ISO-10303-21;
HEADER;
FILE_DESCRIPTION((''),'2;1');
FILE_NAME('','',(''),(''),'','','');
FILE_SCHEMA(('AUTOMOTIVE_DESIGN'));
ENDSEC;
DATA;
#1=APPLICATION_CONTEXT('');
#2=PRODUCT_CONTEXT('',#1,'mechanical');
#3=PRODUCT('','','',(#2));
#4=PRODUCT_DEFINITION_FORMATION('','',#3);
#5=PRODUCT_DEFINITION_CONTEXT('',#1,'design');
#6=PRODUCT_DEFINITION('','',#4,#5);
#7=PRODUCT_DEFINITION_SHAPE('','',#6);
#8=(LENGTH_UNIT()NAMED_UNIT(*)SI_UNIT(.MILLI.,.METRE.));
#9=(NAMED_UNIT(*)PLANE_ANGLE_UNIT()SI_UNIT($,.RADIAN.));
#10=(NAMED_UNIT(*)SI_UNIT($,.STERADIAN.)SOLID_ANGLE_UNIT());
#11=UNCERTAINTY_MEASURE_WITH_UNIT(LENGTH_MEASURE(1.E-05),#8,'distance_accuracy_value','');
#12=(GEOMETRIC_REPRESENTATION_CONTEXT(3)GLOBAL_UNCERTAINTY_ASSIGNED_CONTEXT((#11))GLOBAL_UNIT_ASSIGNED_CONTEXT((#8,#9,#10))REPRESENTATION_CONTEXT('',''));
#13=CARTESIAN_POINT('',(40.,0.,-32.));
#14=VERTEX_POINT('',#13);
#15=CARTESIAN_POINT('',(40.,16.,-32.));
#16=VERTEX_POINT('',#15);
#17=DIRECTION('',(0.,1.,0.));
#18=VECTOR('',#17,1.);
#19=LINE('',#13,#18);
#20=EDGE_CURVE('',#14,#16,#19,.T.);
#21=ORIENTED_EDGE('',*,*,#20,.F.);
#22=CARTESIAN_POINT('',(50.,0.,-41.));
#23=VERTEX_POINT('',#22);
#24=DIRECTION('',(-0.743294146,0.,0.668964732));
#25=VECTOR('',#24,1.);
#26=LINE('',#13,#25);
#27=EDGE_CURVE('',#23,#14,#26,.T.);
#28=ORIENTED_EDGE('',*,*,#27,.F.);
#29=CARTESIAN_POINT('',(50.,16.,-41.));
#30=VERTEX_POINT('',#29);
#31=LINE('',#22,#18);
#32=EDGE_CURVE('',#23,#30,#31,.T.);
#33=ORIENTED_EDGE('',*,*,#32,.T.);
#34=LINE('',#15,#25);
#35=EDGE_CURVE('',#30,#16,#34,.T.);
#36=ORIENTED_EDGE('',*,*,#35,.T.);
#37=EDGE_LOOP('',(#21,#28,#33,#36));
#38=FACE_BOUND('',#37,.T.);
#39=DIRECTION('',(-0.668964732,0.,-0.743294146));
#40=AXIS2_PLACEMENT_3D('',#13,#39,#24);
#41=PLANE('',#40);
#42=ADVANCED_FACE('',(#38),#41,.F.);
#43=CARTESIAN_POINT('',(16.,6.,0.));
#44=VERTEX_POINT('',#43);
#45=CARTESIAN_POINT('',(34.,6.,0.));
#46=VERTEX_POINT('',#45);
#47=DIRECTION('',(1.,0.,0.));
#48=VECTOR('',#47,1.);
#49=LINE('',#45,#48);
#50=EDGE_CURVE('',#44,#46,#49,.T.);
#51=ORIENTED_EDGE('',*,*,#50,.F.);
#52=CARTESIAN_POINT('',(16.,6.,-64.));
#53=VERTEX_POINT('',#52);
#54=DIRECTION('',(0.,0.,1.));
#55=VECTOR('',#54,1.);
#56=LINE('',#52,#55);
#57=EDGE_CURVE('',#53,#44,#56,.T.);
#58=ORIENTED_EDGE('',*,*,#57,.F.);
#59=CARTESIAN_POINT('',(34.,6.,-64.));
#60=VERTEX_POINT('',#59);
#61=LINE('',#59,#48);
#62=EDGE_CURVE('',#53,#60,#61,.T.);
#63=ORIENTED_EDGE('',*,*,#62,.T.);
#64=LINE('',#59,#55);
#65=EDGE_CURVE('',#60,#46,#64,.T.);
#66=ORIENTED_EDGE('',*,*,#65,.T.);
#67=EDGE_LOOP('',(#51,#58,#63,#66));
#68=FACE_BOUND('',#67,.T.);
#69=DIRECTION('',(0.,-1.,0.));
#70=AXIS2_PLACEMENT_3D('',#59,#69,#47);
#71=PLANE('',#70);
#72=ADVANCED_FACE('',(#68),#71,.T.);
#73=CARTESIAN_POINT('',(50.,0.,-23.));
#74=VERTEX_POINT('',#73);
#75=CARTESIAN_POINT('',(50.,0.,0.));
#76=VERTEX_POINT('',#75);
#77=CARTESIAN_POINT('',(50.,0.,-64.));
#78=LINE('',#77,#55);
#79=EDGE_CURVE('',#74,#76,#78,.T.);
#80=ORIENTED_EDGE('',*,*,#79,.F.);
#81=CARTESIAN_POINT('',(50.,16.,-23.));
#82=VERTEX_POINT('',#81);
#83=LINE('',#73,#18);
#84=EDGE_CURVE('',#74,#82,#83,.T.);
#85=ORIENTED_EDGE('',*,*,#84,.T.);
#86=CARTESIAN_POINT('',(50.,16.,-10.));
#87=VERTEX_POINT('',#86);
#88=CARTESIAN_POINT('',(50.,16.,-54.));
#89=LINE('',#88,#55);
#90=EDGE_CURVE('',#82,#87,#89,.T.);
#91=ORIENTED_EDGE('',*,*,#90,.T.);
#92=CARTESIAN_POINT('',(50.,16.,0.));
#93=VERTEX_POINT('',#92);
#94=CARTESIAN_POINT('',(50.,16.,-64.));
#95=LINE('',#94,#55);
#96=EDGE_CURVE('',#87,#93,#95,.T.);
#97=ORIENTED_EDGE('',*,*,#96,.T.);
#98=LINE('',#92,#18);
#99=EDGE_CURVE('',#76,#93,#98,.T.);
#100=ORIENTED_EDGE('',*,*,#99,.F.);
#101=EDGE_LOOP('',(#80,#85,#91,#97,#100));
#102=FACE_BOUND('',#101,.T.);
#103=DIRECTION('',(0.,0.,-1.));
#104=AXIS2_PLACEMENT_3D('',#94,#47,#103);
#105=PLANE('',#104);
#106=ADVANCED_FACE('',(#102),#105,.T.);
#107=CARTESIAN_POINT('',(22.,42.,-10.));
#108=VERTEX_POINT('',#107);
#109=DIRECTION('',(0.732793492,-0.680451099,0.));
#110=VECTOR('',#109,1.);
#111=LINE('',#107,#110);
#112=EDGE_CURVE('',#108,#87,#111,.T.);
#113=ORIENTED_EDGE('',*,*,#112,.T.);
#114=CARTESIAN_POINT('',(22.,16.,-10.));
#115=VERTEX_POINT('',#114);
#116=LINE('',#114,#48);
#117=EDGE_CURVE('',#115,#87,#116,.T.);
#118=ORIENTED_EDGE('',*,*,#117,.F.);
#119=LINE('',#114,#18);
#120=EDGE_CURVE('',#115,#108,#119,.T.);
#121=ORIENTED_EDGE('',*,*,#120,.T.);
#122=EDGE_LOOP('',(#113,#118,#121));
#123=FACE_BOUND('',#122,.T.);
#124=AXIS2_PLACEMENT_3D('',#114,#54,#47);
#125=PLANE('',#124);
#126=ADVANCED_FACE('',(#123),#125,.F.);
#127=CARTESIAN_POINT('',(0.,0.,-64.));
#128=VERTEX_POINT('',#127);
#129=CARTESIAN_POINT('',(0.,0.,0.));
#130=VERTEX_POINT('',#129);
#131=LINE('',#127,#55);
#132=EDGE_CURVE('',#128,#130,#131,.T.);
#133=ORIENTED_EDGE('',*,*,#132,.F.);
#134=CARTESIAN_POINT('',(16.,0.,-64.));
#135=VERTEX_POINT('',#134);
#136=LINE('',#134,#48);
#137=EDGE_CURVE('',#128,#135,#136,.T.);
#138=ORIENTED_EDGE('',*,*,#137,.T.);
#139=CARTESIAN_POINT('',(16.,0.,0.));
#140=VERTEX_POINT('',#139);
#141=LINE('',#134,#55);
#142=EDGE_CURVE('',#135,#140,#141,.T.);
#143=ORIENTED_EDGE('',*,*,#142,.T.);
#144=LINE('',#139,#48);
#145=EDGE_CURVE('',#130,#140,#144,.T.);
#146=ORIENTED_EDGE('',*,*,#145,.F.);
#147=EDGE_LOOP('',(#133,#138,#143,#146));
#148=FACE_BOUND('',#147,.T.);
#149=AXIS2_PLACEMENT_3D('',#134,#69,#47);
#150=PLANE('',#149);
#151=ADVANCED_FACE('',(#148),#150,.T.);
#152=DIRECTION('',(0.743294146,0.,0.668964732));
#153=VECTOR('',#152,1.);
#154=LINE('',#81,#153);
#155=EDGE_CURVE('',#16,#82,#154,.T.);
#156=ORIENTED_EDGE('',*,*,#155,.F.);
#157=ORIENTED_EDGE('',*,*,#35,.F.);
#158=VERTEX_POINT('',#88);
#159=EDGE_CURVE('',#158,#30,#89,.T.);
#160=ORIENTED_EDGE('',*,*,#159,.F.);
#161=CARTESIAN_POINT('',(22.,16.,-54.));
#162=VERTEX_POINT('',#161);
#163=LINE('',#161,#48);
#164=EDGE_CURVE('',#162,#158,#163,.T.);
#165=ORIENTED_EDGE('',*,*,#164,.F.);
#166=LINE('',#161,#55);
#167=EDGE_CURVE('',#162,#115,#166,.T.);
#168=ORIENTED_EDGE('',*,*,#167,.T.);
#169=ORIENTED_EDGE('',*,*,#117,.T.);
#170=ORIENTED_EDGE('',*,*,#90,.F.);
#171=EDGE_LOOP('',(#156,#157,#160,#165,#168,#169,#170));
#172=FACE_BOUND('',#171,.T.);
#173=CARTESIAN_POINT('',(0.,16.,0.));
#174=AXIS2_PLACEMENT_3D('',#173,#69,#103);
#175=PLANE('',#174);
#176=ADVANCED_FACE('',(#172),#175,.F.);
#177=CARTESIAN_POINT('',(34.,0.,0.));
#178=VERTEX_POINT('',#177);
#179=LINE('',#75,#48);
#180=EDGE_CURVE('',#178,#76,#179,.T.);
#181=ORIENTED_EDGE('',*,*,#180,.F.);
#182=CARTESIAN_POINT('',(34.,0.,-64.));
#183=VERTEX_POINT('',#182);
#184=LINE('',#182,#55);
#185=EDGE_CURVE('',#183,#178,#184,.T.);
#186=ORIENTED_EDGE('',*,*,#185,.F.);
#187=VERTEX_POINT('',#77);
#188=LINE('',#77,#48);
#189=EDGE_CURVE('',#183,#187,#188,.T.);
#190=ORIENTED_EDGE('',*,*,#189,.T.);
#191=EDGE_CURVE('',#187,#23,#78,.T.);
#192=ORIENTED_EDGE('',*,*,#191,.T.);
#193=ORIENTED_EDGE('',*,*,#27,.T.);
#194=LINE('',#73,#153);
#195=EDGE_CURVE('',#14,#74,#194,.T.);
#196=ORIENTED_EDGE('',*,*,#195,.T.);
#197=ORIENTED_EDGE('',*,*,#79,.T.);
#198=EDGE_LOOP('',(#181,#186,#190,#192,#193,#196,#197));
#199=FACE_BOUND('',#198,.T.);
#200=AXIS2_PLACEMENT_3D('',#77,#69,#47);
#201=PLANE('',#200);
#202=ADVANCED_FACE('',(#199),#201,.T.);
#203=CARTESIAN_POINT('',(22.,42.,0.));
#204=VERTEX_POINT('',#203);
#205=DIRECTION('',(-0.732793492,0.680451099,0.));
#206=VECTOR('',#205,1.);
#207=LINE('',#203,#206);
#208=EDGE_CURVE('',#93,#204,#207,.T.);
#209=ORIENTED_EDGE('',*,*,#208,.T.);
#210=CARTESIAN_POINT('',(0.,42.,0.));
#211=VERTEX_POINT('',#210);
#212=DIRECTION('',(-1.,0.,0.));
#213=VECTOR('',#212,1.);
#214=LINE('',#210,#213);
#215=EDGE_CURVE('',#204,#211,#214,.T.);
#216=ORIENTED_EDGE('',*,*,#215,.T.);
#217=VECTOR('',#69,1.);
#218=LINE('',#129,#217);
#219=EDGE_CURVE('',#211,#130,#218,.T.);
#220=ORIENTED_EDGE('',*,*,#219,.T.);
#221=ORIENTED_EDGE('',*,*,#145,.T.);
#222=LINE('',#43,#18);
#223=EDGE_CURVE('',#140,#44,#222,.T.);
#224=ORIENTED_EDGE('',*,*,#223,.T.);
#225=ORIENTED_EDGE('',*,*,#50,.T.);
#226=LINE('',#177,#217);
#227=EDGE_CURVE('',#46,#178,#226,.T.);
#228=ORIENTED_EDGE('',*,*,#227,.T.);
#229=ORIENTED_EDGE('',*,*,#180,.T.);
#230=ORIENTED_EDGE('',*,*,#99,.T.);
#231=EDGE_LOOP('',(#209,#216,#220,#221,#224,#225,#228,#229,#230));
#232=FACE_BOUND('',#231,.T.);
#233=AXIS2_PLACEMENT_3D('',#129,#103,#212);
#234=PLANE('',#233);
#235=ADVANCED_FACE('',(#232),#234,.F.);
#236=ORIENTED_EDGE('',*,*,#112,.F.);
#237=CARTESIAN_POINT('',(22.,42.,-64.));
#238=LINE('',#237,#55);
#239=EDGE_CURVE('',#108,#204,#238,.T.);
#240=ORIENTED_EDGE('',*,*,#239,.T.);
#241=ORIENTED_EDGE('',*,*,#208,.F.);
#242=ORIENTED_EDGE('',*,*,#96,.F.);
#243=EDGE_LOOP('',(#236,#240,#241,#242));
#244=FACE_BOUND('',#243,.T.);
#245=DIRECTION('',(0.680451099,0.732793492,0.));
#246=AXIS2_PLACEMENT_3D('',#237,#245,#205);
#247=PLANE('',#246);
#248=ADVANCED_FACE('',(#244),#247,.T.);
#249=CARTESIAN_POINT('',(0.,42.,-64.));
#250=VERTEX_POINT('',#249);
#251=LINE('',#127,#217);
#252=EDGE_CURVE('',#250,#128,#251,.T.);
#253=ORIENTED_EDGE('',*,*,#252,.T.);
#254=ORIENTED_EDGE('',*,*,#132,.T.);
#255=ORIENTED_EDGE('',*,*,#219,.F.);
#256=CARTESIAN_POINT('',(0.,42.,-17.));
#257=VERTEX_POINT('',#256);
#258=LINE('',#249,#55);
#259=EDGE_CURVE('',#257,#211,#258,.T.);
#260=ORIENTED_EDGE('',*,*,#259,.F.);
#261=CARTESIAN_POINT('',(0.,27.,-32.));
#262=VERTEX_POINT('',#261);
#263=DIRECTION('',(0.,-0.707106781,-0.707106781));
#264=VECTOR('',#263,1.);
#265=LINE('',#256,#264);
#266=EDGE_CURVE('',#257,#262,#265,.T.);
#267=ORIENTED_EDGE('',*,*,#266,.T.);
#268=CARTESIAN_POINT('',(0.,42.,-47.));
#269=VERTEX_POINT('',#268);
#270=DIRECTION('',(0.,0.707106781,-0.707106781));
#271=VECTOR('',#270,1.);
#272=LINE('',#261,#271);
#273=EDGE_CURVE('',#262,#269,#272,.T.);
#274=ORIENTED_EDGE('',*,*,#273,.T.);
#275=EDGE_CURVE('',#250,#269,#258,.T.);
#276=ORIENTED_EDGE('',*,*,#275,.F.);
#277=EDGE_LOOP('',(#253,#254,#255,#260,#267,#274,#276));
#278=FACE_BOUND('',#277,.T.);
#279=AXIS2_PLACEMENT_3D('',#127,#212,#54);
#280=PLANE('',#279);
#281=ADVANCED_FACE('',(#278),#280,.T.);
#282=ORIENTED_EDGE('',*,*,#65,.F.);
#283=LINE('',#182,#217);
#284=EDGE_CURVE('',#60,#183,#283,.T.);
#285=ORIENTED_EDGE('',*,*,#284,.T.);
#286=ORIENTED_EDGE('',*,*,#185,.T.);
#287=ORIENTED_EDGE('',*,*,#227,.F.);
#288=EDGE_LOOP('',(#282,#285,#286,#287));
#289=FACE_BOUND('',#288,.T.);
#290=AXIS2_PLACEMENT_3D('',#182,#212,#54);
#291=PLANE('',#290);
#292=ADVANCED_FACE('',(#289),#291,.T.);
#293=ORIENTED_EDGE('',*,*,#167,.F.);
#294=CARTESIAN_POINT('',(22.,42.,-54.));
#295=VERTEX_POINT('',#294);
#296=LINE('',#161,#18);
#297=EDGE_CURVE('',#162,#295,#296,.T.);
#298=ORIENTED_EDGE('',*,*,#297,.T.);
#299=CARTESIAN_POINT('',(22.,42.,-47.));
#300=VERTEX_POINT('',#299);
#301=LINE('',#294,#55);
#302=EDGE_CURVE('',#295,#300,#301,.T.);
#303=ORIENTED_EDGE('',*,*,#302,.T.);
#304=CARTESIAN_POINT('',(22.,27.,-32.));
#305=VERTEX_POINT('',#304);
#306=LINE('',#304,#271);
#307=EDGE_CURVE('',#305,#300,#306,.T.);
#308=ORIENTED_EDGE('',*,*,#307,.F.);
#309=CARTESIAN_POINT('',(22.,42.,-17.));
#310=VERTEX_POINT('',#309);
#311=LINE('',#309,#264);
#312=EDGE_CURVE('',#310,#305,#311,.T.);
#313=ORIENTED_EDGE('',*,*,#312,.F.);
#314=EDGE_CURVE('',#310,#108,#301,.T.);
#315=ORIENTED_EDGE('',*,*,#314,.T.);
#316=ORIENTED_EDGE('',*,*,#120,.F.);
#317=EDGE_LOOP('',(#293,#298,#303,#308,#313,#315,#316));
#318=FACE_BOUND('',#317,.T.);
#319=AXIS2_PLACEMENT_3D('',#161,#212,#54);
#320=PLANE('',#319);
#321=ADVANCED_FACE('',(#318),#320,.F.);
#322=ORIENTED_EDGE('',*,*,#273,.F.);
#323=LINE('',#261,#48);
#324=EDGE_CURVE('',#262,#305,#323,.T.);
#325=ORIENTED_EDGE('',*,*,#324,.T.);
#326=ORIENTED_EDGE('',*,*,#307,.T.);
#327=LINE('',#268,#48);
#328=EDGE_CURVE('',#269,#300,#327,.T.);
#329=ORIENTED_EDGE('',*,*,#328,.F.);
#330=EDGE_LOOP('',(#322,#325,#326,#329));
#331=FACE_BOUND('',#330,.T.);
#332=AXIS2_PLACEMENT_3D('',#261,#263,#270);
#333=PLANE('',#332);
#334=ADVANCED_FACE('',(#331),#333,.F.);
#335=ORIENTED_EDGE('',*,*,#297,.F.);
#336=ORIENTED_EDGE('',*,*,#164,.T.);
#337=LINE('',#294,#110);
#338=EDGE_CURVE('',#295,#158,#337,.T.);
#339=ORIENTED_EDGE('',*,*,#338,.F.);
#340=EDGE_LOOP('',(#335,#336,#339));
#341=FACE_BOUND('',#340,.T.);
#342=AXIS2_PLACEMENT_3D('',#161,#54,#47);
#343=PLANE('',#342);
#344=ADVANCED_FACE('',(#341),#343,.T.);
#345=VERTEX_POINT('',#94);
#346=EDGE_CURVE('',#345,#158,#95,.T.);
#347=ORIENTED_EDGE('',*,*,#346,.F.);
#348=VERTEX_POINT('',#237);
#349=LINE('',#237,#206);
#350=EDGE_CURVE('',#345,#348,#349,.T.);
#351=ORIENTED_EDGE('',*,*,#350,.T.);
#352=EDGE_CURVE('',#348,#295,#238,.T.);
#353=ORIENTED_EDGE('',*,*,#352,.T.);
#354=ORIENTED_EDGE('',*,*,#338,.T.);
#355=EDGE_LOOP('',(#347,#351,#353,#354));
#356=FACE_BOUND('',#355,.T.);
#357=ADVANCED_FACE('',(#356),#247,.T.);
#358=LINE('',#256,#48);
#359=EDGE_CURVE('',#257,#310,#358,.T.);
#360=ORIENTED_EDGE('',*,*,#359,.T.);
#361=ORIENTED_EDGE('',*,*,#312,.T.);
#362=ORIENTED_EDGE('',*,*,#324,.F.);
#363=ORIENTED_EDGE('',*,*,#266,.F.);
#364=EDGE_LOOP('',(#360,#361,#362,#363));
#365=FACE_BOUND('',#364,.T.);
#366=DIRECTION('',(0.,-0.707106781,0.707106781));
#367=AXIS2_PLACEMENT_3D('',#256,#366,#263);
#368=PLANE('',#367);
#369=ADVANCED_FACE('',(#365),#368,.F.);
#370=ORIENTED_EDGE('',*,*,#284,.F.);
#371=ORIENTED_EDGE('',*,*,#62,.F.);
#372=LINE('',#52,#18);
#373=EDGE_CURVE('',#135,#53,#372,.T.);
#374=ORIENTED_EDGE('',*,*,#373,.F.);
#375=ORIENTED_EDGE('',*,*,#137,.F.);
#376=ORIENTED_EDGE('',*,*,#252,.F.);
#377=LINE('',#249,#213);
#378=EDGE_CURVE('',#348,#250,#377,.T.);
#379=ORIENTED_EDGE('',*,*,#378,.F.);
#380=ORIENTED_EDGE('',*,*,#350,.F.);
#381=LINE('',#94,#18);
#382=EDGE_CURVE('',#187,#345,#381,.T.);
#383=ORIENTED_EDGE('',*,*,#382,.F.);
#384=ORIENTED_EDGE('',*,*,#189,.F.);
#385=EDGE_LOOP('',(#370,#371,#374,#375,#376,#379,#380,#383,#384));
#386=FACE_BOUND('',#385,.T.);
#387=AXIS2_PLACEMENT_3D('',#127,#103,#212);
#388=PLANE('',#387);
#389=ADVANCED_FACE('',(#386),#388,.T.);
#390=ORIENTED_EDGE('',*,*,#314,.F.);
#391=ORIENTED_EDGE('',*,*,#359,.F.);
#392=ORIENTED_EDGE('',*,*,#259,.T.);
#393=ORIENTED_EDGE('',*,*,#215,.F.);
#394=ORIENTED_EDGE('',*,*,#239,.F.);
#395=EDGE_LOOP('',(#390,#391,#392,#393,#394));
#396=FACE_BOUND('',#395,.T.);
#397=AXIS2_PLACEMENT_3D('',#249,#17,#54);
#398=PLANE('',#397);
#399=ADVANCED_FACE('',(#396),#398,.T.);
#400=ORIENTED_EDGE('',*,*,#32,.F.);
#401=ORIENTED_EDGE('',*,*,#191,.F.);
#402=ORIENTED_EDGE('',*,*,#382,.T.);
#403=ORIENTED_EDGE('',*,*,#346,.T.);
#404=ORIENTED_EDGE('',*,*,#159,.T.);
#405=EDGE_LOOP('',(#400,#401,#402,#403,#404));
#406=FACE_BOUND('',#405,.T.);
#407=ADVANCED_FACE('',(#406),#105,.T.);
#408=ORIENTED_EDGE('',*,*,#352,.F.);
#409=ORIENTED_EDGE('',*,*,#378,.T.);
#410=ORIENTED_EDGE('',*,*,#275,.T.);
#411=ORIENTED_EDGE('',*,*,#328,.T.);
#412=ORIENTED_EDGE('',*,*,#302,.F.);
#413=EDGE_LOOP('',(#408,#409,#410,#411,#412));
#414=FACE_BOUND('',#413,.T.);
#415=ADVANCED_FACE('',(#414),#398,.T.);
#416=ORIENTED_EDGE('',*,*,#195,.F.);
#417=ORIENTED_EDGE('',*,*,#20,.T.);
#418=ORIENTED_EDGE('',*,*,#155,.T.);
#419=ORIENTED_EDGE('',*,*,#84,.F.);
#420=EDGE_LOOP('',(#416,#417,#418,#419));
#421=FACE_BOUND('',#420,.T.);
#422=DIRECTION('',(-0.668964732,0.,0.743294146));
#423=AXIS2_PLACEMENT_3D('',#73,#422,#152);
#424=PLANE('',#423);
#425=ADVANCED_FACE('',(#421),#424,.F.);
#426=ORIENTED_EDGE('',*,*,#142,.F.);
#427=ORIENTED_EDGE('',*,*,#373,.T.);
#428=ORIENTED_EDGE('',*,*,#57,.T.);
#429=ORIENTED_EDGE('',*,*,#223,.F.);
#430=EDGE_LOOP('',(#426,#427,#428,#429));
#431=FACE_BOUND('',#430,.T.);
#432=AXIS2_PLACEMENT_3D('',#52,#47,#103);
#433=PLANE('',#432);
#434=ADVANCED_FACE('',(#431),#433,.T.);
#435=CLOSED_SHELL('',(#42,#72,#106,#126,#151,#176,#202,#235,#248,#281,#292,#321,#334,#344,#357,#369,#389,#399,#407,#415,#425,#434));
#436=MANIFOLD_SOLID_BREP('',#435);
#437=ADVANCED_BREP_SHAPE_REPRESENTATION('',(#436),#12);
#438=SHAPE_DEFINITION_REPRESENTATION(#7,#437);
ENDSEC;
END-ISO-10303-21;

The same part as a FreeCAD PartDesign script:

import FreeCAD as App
import Part
import Sketcher

V = App.Vector

doc = App.newDocument("Part")
body = doc.addObject("PartDesign::Body", "Body")

sketch1 = body.newObject("Sketcher::SketchObject", "Sketch")
sketch1.AttachmentSupport = (doc.getObject("XY_Plane"), [""])
sketch1.MapMode = "FlatFace"
sketch1.addGeometry(Part.LineSegment(V(0, 42, 0), V(0, 0, 0)), False)
sketch1.addGeometry(Part.LineSegment(V(0, 0, 0), V(16, 0, 0)), False)
sketch1.addGeometry(Part.LineSegment(V(16, 0, 0), V(16, 6, 0)), False)
sketch1.addGeometry(Part.LineSegment(V(16, 6, 0), V(34, 6, 0)), False)
sketch1.addGeometry(Part.LineSegment(V(34, 6, 0), V(34, 0, 0)), False)
sketch1.addGeometry(Part.LineSegment(V(34, 0, 0), V(50, 0, 0)), False)
sketch1.addGeometry(Part.LineSegment(V(50, 0, 0), V(50, 16, 0)), False)
sketch1.addGeometry(Part.LineSegment(V(50, 16, 0), V(22, 42, 0)), False)
sketch1.addGeometry(Part.LineSegment(V(22, 42, 0), V(0, 42, 0)), False)
sketch1.addConstraint(Sketcher.Constraint("Coincident", 0, 2, 1, 1))
sketch1.addConstraint(Sketcher.Constraint("Coincident", 1, 2, 2, 1))
sketch1.addConstraint(Sketcher.Constraint("Coincident", 2, 2, 3, 1))
sketch1.addConstraint(Sketcher.Constraint("Coincident", 3, 2, 4, 1))
sketch1.addConstraint(Sketcher.Constraint("Coincident", 4, 2, 5, 1))
sketch1.addConstraint(Sketcher.Constraint("Coincident", 5, 2, 6, 1))
sketch1.addConstraint(Sketcher.Constraint("Coincident", 6, 2, 7, 1))
sketch1.addConstraint(Sketcher.Constraint("Coincident", 7, 2, 8, 1))
sketch1.addConstraint(Sketcher.Constraint("Coincident", 8, 2, 0, 1))
sketch1.addConstraint(Sketcher.Constraint("Vertical", 0))
sketch1.addConstraint(Sketcher.Constraint("Horizontal", 1))
sketch1.addConstraint(Sketcher.Constraint("Vertical", 2))
sketch1.addConstraint(Sketcher.Constraint("Horizontal", 3))
sketch1.addConstraint(Sketcher.Constraint("Vertical", 4))
sketch1.addConstraint(Sketcher.Constraint("Horizontal", 5))
sketch1.addConstraint(Sketcher.Constraint("Vertical", 6))
sketch1.addConstraint(Sketcher.Constraint("Horizontal", 8))
sketch1.addConstraint(Sketcher.Constraint("Coincident", 0, 2, -1, 1))
sketch1.addConstraint(Sketcher.Constraint("PointOnObject", 4, 2, -1))
sketch1.addConstraint(Sketcher.Constraint("Equal", 1, 5))
sketch1.addConstraint(Sketcher.Constraint("Equal", 5, 6))
sketch1.addConstraint(Sketcher.Constraint("DistanceX", 1, 1, 1, 2, 16.0))
sketch1.addConstraint(Sketcher.Constraint("DistanceX", 3, 1, 3, 2, 18.0))
sketch1.addConstraint(Sketcher.Constraint("DistanceX", 8, 2, 8, 1, 22.0))
sketch1.addConstraint(Sketcher.Constraint("DistanceY", 0, 2, 0, 1, 42.0))
sketch1.addConstraint(Sketcher.Constraint("DistanceY", 2, 1, 2, 2, 6.0))
pad1 = body.newObject("PartDesign::Pad", "Pad")
pad1.Profile = sketch1
pad1.Length = 64
pad1.Reversed = True

sketch2 = body.newObject("Sketcher::SketchObject", "Sketch001")
sketch2.AttachmentSupport = (doc.getObject("XZ_Plane"), [""])
sketch2.MapMode = "FlatFace"
sketch2.AttachmentOffset = App.Placement(V(0, 0, -42), App.Rotation())
sketch2.addGeometry(Part.LineSegment(V(22, -54, 0), V(22, -10, 0)), False)
sketch2.addGeometry(Part.LineSegment(V(22, -10, 0), V(50, -10, 0)), False)
sketch2.addGeometry(Part.LineSegment(V(50, -10, 0), V(50, -54, 0)), False)
sketch2.addGeometry(Part.LineSegment(V(50, -54, 0), V(22, -54, 0)), False)
sketch2.addConstraint(Sketcher.Constraint("Coincident", 0, 2, 1, 1))
sketch2.addConstraint(Sketcher.Constraint("Coincident", 1, 2, 2, 1))
sketch2.addConstraint(Sketcher.Constraint("Coincident", 2, 2, 3, 1))
sketch2.addConstraint(Sketcher.Constraint("Coincident", 3, 2, 0, 1))
sketch2.addConstraint(Sketcher.Constraint("Vertical", 0))
sketch2.addConstraint(Sketcher.Constraint("Horizontal", 1))
sketch2.addConstraint(Sketcher.Constraint("Vertical", 2))
sketch2.addConstraint(Sketcher.Constraint("Horizontal", 3))
sketch2.addConstraint(Sketcher.Constraint("DistanceX", 1, 1, 1, 2, 28.0))
sketch2.addConstraint(Sketcher.Constraint("DistanceY", 0, 1, 0, 2, 44.0))
sketch2.addConstraint(Sketcher.Constraint("DistanceX", -1, 1, 0, 2, 22.0))
sketch2.addConstraint(Sketcher.Constraint("DistanceY", 0, 2, -1, 1, 10.0))
pocket1 = body.newObject("PartDesign::Pocket", "Pocket")
pocket1.Profile = sketch2
pocket1.Length = 26
pocket1.Reversed = True

sketch3 = body.newObject("Sketcher::SketchObject", "Sketch002")
sketch3.AttachmentSupport = (doc.getObject("YZ_Plane"), [""])
sketch3.MapMode = "FlatFace"
sketch3.AttachmentOffset = App.Placement(V(0, 0, 22), App.Rotation())
sketch3.addGeometry(Part.LineSegment(V(27, -32, 0), V(42, -47, 0)), False)
sketch3.addGeometry(Part.LineSegment(V(42, -47, 0), V(42, -17, 0)), False)
sketch3.addGeometry(Part.LineSegment(V(42, -17, 0), V(27, -32, 0)), False)
sketch3.addConstraint(Sketcher.Constraint("Coincident", 0, 2, 1, 1))
sketch3.addConstraint(Sketcher.Constraint("Coincident", 1, 2, 2, 1))
sketch3.addConstraint(Sketcher.Constraint("Coincident", 2, 2, 0, 1))
sketch3.addConstraint(Sketcher.Constraint("Vertical", 1))
sketch3.addConstraint(Sketcher.Constraint("Perpendicular", 0, 2))
sketch3.addConstraint(Sketcher.Constraint("Equal", 0, 2))
sketch3.addConstraint(Sketcher.Constraint("DistanceY", 1, 1, 1, 2, 30.0))
sketch3.addConstraint(Sketcher.Constraint("DistanceX", -1, 1, 0, 2, 42.0))
sketch3.addConstraint(Sketcher.Constraint("DistanceY", 0, 2, -1, 1, 47.0))
pocket2 = body.newObject("PartDesign::Pocket", "Pocket001")
pocket2.Profile = sketch3
pocket2.Type = "ThroughAll"

sketch4 = body.newObject("Sketcher::SketchObject", "Sketch003")
sketch4.AttachmentSupport = (doc.getObject("XZ_Plane"), [""])
sketch4.MapMode = "FlatFace"
sketch4.AttachmentOffset = App.Placement(V(0, 0, -16), App.Rotation())
sketch4.addGeometry(Part.LineSegment(V(50, -41, 0), V(40, -32, 0)), False)
sketch4.addGeometry(Part.LineSegment(V(40, -32, 0), V(50, -23, 0)), False)
sketch4.addGeometry(Part.LineSegment(V(50, -23, 0), V(50, -41, 0)), False)
sketch4.addConstraint(Sketcher.Constraint("Coincident", 0, 2, 1, 1))
sketch4.addConstraint(Sketcher.Constraint("Coincident", 1, 2, 2, 1))
sketch4.addConstraint(Sketcher.Constraint("Coincident", 2, 2, 0, 1))
sketch4.addConstraint(Sketcher.Constraint("Vertical", 2))
sketch4.addConstraint(Sketcher.Constraint("Equal", 0, 1))
sketch4.addConstraint(Sketcher.Constraint("DistanceY", 2, 2, 2, 1, 18.0))
sketch4.addConstraint(Sketcher.Constraint("DistanceX", -1, 1, 0, 2, 40.0))
sketch4.addConstraint(Sketcher.Constraint("DistanceY", 0, 2, -1, 1, 32.0))
sketch4.addConstraint(Sketcher.Constraint("DistanceX", -1, 1, 1, 2, 50.0))
pocket3 = body.newObject("PartDesign::Pocket", "Pocket002")
pocket3.Profile = sketch4
pocket3.Type = "ThroughAll"
pocket3.Reversed = True

doc.recompute()
